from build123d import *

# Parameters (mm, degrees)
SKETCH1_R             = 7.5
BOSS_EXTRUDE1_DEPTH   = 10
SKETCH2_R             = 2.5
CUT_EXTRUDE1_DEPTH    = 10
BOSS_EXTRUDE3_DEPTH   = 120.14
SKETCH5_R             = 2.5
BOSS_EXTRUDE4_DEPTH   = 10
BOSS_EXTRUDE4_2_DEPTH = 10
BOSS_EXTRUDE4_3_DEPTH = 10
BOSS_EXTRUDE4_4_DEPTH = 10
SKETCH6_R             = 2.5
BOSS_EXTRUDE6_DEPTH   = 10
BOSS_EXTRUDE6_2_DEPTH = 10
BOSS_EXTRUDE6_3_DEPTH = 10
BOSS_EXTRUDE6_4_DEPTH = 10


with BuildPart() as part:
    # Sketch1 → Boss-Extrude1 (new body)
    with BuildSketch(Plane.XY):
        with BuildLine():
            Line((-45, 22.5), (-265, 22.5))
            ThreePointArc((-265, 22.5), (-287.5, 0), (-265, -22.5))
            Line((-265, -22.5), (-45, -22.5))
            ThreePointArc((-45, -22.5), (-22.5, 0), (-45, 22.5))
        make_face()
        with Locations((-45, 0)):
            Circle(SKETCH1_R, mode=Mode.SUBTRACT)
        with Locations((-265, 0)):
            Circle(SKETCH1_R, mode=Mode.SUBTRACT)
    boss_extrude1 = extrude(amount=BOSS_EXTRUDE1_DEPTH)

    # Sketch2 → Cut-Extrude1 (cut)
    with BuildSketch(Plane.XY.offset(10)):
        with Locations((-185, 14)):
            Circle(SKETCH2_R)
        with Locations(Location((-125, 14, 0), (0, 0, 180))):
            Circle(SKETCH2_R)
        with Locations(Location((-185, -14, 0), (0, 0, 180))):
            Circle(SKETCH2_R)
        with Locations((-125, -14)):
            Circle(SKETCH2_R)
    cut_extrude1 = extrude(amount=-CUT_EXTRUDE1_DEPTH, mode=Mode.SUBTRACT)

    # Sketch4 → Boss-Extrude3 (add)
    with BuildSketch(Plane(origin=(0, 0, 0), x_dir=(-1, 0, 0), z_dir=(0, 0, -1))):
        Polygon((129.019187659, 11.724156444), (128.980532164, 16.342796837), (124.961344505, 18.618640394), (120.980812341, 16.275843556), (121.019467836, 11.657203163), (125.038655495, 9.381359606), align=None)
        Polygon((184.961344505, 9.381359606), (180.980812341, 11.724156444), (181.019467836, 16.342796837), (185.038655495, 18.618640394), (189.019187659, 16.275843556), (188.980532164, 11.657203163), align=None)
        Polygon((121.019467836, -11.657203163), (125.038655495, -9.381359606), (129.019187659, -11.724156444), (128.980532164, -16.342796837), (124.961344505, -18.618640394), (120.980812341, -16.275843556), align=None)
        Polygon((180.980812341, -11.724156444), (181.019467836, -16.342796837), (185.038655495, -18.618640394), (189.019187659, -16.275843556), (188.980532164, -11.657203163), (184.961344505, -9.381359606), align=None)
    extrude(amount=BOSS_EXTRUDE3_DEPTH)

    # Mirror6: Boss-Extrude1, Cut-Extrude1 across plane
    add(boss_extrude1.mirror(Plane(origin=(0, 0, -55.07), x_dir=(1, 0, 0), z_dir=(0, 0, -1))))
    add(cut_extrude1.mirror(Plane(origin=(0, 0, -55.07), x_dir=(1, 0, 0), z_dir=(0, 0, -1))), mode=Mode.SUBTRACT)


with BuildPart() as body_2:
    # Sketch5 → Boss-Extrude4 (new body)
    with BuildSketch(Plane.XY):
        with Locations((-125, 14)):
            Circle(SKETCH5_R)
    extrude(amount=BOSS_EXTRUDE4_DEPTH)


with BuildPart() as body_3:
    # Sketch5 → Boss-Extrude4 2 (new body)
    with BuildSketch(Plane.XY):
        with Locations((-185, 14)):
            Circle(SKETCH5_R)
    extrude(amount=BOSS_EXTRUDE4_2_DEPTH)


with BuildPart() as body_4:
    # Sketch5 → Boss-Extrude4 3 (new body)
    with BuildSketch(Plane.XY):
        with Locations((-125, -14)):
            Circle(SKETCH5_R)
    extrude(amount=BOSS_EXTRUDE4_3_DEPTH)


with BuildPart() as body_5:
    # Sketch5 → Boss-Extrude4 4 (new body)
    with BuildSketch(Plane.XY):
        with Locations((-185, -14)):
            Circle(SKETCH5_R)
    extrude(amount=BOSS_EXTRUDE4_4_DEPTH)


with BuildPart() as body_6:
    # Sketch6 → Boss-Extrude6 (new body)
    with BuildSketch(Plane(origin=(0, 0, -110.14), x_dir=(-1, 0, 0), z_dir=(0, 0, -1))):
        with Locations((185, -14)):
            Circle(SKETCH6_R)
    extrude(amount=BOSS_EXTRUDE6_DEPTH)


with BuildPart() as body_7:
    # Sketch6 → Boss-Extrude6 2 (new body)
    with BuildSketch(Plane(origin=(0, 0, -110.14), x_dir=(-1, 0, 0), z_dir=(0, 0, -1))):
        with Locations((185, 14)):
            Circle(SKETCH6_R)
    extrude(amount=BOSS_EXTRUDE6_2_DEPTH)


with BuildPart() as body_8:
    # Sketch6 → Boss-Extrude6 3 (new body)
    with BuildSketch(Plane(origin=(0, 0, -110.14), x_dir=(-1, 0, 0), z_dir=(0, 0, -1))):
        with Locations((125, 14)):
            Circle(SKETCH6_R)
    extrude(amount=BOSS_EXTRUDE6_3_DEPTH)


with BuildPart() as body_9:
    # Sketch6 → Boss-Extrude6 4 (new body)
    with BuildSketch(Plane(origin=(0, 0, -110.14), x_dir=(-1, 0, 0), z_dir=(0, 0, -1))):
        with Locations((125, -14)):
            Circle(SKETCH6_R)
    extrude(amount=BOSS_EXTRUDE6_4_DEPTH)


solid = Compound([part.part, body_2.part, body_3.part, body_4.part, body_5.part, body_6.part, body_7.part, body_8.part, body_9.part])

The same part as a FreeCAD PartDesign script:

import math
import FreeCAD as App
import Part
import Sketcher

V = App.Vector


def add_polygon(sketch, points):
    """Adds a closed chain of lines whose ends are joined by coincident constraints."""
    first, n = sketch.GeometryCount, len(points)
    for a, b in zip(points, points[1:] + points[:1]):
        sketch.addGeometry(Part.LineSegment(App.Vector(*a, 0), App.Vector(*b, 0)), False)
    for i in range(n):
        sketch.addConstraint(Sketcher.Constraint("Coincident", first + i, 2, first + (i + 1) % n, 1))

doc = App.newDocument("Part")
body = doc.addObject("PartDesign::Body", "Body")

# Sketch on XY plane
sketch1 = body.newObject("Sketcher::SketchObject", "Sketch")
sketch1.AttachmentSupport = (doc.getObject("XY_Plane"), [""])
sketch1.MapMode = "FlatFace"
sketch1.addGeometry([
    Part.LineSegment(V(-45, 22, 0), V(-265, 22, 0)),  # 0
    Part.ArcOfCircle(Part.Circle(V(-265, 0, 0), V(0, 0, 1), 22), math.radians(90), math.radians(270)),  # 1
    Part.LineSegment(V(-265, -22, 0), V(-45, -22, 0)),  # 2
    Part.ArcOfCircle(Part.Circle(V(-45, 0, 0), V(0, 0, 1), 22), math.radians(-90), math.radians(90)),  # 3
    Part.Circle(V(-265, 0, 0), V(0, 0, 1), 8),  # 4
    Part.Circle(V(-45, 0, 0), V(0, 0, 1), 8),  # 5
], False)
sketch1.addConstraint([
    Sketcher.Constraint("Tangent", 0, 2, 1, 1),
    Sketcher.Constraint("Tangent", 1, 2, 2, 1),
    Sketcher.Constraint("Tangent", 2, 2, 3, 1),
    Sketcher.Constraint("Tangent", 3, 2, 0, 1),
    Sketcher.Constraint("Horizontal", 0),
    Sketcher.Constraint("Horizontal", 2),
    Sketcher.Constraint("Coincident", 4, 3, 1, 3),
    Sketcher.Constraint("Coincident", 5, 3, 3, 3),
    Sketcher.Constraint("Equal", 4, 5),
    Sketcher.Constraint("PointOnObject", 1, 3, -1),
    Sketcher.Constraint("Diameter", 4, 15.0),
    Sketcher.Constraint("Radius", 1, 22.5),
    Sketcher.Constraint("DistanceX", 0, 2, 0, 1, 220.0),
    Sketcher.Constraint("DistanceX", 1, 3, -1, 1, 265.0),
])
pad1 = body.newObject("PartDesign::Pad", "Pad")
pad1.Profile = sketch1
pad1.Length = 10

# Sketch on XY plane
sketch2 = body.newObject("Sketcher::SketchObject", "Sketch001")
sketch2.AttachmentSupport = (doc.getObject("XY_Plane"), [""])
sketch2.MapMode = "FlatFace"
sketch2.AttachmentOffset = App.Placement(V(0, 0, 10), App.Rotation())
sketch2.addGeometry([
    Part.Circle(V(-185, 14, 0), V(0, 0, 1), 2.5),
    Part.Circle(V(-125, 14, 0), V(0, 0, 1), 2.5),
    Part.Circle(V(-185, -14, 0), V(0, 0, 1), 2.5),
    Part.Circle(V(-125, -14, 0), V(0, 0, 1), 2.5),
], False)
sketch2.addConstraint([
    Sketcher.Constraint("Equal", 0, 1),
    Sketcher.Constraint("Equal", 1, 2),
    Sketcher.Constraint("Equal", 2, 3),
    Sketcher.Constraint("Symmetric", 0, 3, 2, 3, -1),
    Sketcher.Constraint("Symmetric", 1, 3, 3, 3, -1),
    Sketcher.Constraint("Horizontal", 0, 3, 1, 3),
    Sketcher.Constraint("Diameter", 0, 5.0),
    Sketcher.Constraint("DistanceX", 0, 3, -1, 1, 185.0),
    Sketcher.Constraint("DistanceY", -1, 1, 0, 3, 14.0),
    Sketcher.Constraint("DistanceX", 1, 3, -1, 1, 125.0),
])
pocket1 = body.newObject("PartDesign::Pocket", "Pocket")
pocket1.Profile = sketch2
pocket1.Length = 10

# Sketch on XY plane
sketch3 = body.newObject("Sketcher::SketchObject", "Sketch002")
sketch3.AttachmentSupport = (doc.getObject("XY_Plane"), [""])
sketch3.MapMode = "FlatFace"
add_polygon(sketch3, [(-129, 11.7), (-129, 16.3), (-125, 18.6), (-121, 16.3), (-121, 11.7), (-125, 9.4)])  # lines 0-5
add_polygon(sketch3, [(-181, 11.7), (-185, 9.4), (-189, 11.7), (-189, 16.3), (-185, 18.6), (-181, 16.3)])  # lines 6-11
add_polygon(sketch3, [(-125, -9.4), (-121, -11.7), (-121, -16.3), (-125, -18.6), (-129, -16.3), (-129, -11.7)])  # lines 12-17
add_polygon(sketch3, [(-181, -11.7), (-181, -16.3), (-185, -18.6), (-189, -16.3), (-189, -11.7), (-185, -9.4)])  # lines 18-23
sketch3.addConstraint([
    Sketcher.Constraint("Symmetric", 3, 2, 12, 2, -1),
    Sketcher.Constraint("Symmetric", 2, 2, 13, 2, -1),
    Sketcher.Constraint("Symmetric", 1, 2, 14, 2, -1),
    Sketcher.Constraint("Symmetric", 0, 2, 15, 2, -1),
    Sketcher.Constraint("Symmetric", 5, 2, 16, 2, -1),
    Sketcher.Constraint("Symmetric", 4, 2, 17, 2, -1),
    Sketcher.Constraint("Symmetric", 10, 2, 18, 2, -1),
    Sketcher.Constraint("Symmetric", 9, 2, 19, 2, -1),
    Sketcher.Constraint("Symmetric", 8, 2, 20, 2, -1),
    Sketcher.Constraint("Symmetric", 7, 2, 21, 2, -1),
    Sketcher.Constraint("Symmetric", 6, 2, 22, 2, -1),
    Sketcher.Constraint("Symmetric", 11, 2, 23, 2, -1),
    Sketcher.Constraint("Parallel", 0, 3),
    Sketcher.Constraint("Parallel", 1, 4),
    Sketcher.Constraint("Parallel", 2, 5),
    Sketcher.Constraint("Parallel", 6, 9),
    Sketcher.Constraint("Parallel", 7, 10),
    Sketcher.Constraint("Parallel", 8, 11),
    Sketcher.Constraint("Parallel", 10, 12),
    Sketcher.Constraint("Parallel", 11, 13),
    Sketcher.Constraint("Parallel", 9, 14),
    Sketcher.Constraint("Horizontal", 4, 2, 6, 2),
    Sketcher.Constraint("Horizontal", 3, 2, 7, 2),
    Sketcher.Constraint("Horizontal", 2, 2, 8, 2),
    Sketcher.Constraint("Horizontal", 1, 2, 9, 2),
    Sketcher.Constraint("Horizontal", 0, 2, 10, 2),
    Sketcher.Constraint("Equal", 0, 1),
    Sketcher.Constraint("Equal", 1, 2),
    Sketcher.Constraint("Equal", 2, 3),
    Sketcher.Constraint("DistanceX", 6, 2, 1, 2, 60.0),
    Sketcher.Constraint("DistanceY", 12, 2, 0, 2, 28.0),
    Sketcher.Constraint("DistanceY", -1, 1, 1, 2, 18.61864),
    Sketcher.Constraint("DistanceX", 0, 2, 2, 2, 7.99972),
    Sketcher.Constraint("DistanceX", 4, 2, 1, 2, 0.077311),
    Sketcher.Constraint("DistanceX", 0, 2, -1, 1, 128.980532),
    Sketcher.Constraint("DistanceY", -1, 1, 0, 2, 16.342797),
])
pad2 = body.newObject("PartDesign::Pad", "Pad001")
pad2.Profile = sketch3
pad2.Length = 120.14
pad2.Reversed = True
doc.recompute()

datumplane = body.newObject("PartDesign::Plane", "DatumPlane")
datumplane.AttachmentSupport = (doc.getObject("XY_Plane"), [""])
datumplane.MapMode = "FlatFace"
datumplane.AttachmentOffset = App.Placement(V(0, 0, -55.07), App.Rotation())
mirrored = body.newObject("PartDesign::Mirrored", "Mirrored")
mirrored.Originals = [pad1, pocket1]
mirrored.MirrorPlane = (datumplane, [""])
body.Tip = mirrored
body2 = doc.addObject("PartDesign::Body", "Body001")

# Sketch on XY plane
sketch4 = body2.newObject("Sketcher::SketchObject", "Sketch003")
sketch4.AttachmentSupport = (doc.getObject("XY_Plane001"), [""])
sketch4.MapMode = "FlatFace"
sketch4.addGeometry(Part.Circle(V(-125, 14, 0), V(0, 0, 1), 2.5), False)
sketch4.addConstraint([
    Sketcher.Constraint("Diameter", 0, 5.0),
    Sketcher.Constraint("DistanceX", 0, 3, -1, 1, 125.0),
    Sketcher.Constraint("DistanceY", -1, 1, 0, 3, 14.0),
])
pad3 = body2.newObject("PartDesign::Pad", "Pad002")
pad3.Profile = sketch4
pad3.Length = 10
body3 = doc.addObject("PartDesign::Body", "Body002")

# Sketch on XY plane
sketch5 = body3.newObject("Sketcher::SketchObject", "Sketch004")
sketch5.AttachmentSupport = (doc.getObject("XY_Plane002"), [""])
sketch5.MapMode = "FlatFace"
sketch5.addGeometry(Part.Circle(V(-185, 14, 0), V(0, 0, 1), 2.5), False)
sketch5.addConstraint([
    Sketcher.Constraint("Diameter", 0, 5.0),
    Sketcher.Constraint("DistanceX", 0, 3, -1, 1, 185.0),
    Sketcher.Constraint("DistanceY", -1, 1, 0, 3, 14.0),
])
pad4 = body3.newObject("PartDesign::Pad", "Pad003")
pad4.Profile = sketch5
pad4.Length = 10
body4 = doc.addObject("PartDesign::Body", "Body003")

# Sketch on XY plane
sketch6 = body4.newObject("Sketcher::SketchObject", "Sketch005")
sketch6.AttachmentSupport = (doc.getObject("XY_Plane003"), [""])
sketch6.MapMode = "FlatFace"
sketch6.addGeometry(Part.Circle(V(-125, -14, 0), V(0, 0, 1), 2.5), False)
sketch6.addConstraint([
    Sketcher.Constraint("Diameter", 0, 5.0),
    Sketcher.Constraint("DistanceX", 0, 3, -1, 1, 125.0),
    Sketcher.Constraint("DistanceY", 0, 3, -1, 1, 14.0),
])
pad5 = body4.newObject("PartDesign::Pad", "Pad004")
pad5.Profile = sketch6
pad5.Length = 10
body5 = doc.addObject("PartDesign::Body", "Body004")

# Sketch on XY plane
sketch7 = body5.newObject("Sketcher::SketchObject", "Sketch006")
sketch7.AttachmentSupport = (doc.getObject("XY_Plane004"), [""])
sketch7.MapMode = "FlatFace"
sketch7.addGeometry(Part.Circle(V(-185, -14, 0), V(0, 0, 1), 2.5), False)
sketch7.addConstraint([
    Sketcher.Constraint("Diameter", 0, 5.0),
    Sketcher.Constraint("DistanceX", 0, 3, -1, 1, 185.0),
    Sketcher.Constraint("DistanceY", 0, 3, -1, 1, 14.0),
])
pad6 = body5.newObject("PartDesign::Pad", "Pad005")
pad6.Profile = sketch7
pad6.Length = 10
body6 = doc.addObject("PartDesign::Body", "Body005")

# Sketch on XY plane
sketch8 = body6.newObject("Sketcher::SketchObject", "Sketch007")
sketch8.AttachmentSupport = (doc.getObject("XY_Plane005"), [""])
sketch8.MapMode = "FlatFace"
sketch8.AttachmentOffset = App.Placement(V(0, 0, -110.14), App.Rotation())
sketch8.addGeometry(Part.Circle(V(-185, -14, 0), V(0, 0, 1), 2.5), False)
sketch8.addConstraint([
    Sketcher.Constraint("Diameter", 0, 5.0),
    Sketcher.Constraint("DistanceX", 0, 3, -1, 1, 185.0),
    Sketcher.Constraint("DistanceY", 0, 3, -1, 1, 14.0),
])
pad7 = body6.newObject("PartDesign::Pad", "Pad006")
pad7.Profile = sketch8
pad7.Length = 10
pad7.Reversed = True
body7 = doc.addObject("PartDesign::Body", "Body006")

# Sketch on XY plane
sketch9 = body7.newObject("Sketcher::SketchObject", "Sketch008")
sketch9.AttachmentSupport = (doc.getObject("XY_Plane006"), [""])
sketch9.MapMode = "FlatFace"
sketch9.AttachmentOffset = App.Placement(V(0, 0, -110.14), App.Rotation())
sketch9.addGeometry(Part.Circle(V(-185, 14, 0), V(0, 0, 1), 2.5), False)
sketch9.addConstraint([
    Sketcher.Constraint("Diameter", 0, 5.0),
    Sketcher.Constraint("DistanceX", 0, 3, -1, 1, 185.0),
    Sketcher.Constraint("DistanceY", -1, 1, 0, 3, 14.0),
])
pad8 = body7.newObject("PartDesign::Pad", "Pad007")
pad8.Profile = sketch9
pad8.Length = 10
pad8.Reversed = True
body8 = doc.addObject("PartDesign::Body", "Body007")

# Sketch on XY plane
sketch10 = body8.newObject("Sketcher::SketchObject", "Sketch009")
sketch10.AttachmentSupport = (doc.getObject("XY_Plane007"), [""])
sketch10.MapMode = "FlatFace"
sketch10.AttachmentOffset = App.Placement(V(0, 0, -110.14), App.Rotation())
sketch10.addGeometry(Part.Circle(V(-125, 14, 0), V(0, 0, 1), 2.5), False)
sketch10.addConstraint([
    Sketcher.Constraint("Diameter", 0, 5.0),
    Sketcher.Constraint("DistanceX", 0, 3, -1, 1, 125.0),
    Sketcher.Constraint("DistanceY", -1, 1, 0, 3, 14.0),
])
pad9 = body8.newObject("PartDesign::Pad", "Pad008")
pad9.Profile = sketch10
pad9.Length = 10
pad9.Reversed = True
body9 = doc.addObject("PartDesign::Body", "Body008")

# Sketch on XY plane
sketch11 = body9.newObject("Sketcher::SketchObject", "Sketch010")
sketch11.AttachmentSupport = (doc.getObject("XY_Plane008"), [""])
sketch11.MapMode = "FlatFace"
sketch11.AttachmentOffset = App.Placement(V(0, 0, -110.14), App.Rotation())
sketch11.addGeometry(Part.Circle(V(-125, -14, 0), V(0, 0, 1), 2.5), False)
sketch11.addConstraint([
    Sketcher.Constraint("Diameter", 0, 5.0),
    Sketcher.Constraint("DistanceX", 0, 3, -1, 1, 125.0),
    Sketcher.Constraint("DistanceY", 0, 3, -1, 1, 14.0),
])
pad10 = body9.newObject("PartDesign::Pad", "Pad009")
pad10.Profile = sketch11
pad10.Length = 10
pad10.Reversed = True

doc.recompute()
